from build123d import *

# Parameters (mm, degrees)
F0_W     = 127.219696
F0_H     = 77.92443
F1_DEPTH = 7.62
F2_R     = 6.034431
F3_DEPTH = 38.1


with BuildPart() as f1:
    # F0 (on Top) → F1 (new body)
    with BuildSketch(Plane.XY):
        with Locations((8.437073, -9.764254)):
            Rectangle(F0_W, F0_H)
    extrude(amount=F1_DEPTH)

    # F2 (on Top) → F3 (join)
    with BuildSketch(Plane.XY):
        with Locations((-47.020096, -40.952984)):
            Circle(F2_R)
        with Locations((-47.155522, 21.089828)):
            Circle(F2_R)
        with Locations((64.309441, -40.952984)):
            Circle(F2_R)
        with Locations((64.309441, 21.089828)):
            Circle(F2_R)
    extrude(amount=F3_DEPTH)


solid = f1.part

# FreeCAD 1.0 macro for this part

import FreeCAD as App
import Part
import Sketcher
from FreeCAD import Vector
Q = App.Units.Quantity


def add_polygon(sketch, points):
    """Adds a closed chain of lines whose ends are joined by coincident constraints."""
    first, n = sketch.GeometryCount, len(points)
    for a, b in zip(points, points[1:] + points[:1]):
        sketch.addGeometry(Part.LineSegment(App.Vector(*a, 0), App.Vector(*b, 0)), False)
    for i in range(n):
        sketch.addConstraint(Sketcher.Constraint("Coincident", first + i, 2, first + (i + 1) % n, 1))

doc = App.newDocument("Part")
body = doc.addObject("PartDesign::Body", "Body")

sketch1 = body.newObject("Sketcher::SketchObject", "Sketch")
sketch1.AttachmentSupport = (doc.getObject("XY_Plane"), [""])
sketch1.MapMode = "FlatFace"
add_polygon(sketch1, [(-55.172775, 29.197961), (-55.172775, -48.726469), (72.046921, -48.726469), (72.046921, 29.197961)])
sketch1.addConstraint(Sketcher.Constraint("Vertical", 0))
sketch1.addConstraint(Sketcher.Constraint("Horizontal", 1))
sketch1.addConstraint(Sketcher.Constraint("Vertical", 2))
sketch1.addConstraint(Sketcher.Constraint("Horizontal", 3))
sketch1.addConstraint(Sketcher.Constraint("DistanceY", 0, 2, 0, 1, 77.92443))
sketch1.addConstraint(Sketcher.Constraint("DistanceX", 1, 1, 1, 2, 127.219696))
sketch1.addConstraint(Sketcher.Constraint("DistanceY", 0, 2, -1, 1, 48.726469))
sketch1.addConstraint(Sketcher.Constraint("DistanceX", -1, 1, 1, 2, 72.046921))
pad1 = body.newObject("PartDesign::Pad", "Pad")
pad1.Profile = sketch1
pad1.Length = Q("0.3 in")

sketch2 = body.newObject("Sketcher::SketchObject", "Sketch001")
sketch2.AttachmentSupport = (doc.getObject("XY_Plane"), [""])
sketch2.MapMode = "FlatFace"
sketch2.addGeometry(Part.Circle(Vector(-47.020096, -40.952984, 0), Vector(0, 0, 1), 6.034431), False)
sketch2.addGeometry(Part.Circle(Vector(-47.155522, 21.089828, 0), Vector(0, 0, 1), 6.034431), False)
sketch2.addGeometry(Part.Circle(Vector(64.309441, -40.952984, 0), Vector(0, 0, 1), 6.034431), False)
sketch2.addGeometry(Part.Circle(Vector(64.309441, 21.089828, 0), Vector(0, 0, 1), 6.034431), False)
sketch2.addConstraint(Sketcher.Constraint("Equal", 0, 1))
sketch2.addConstraint(Sketcher.Constraint("Equal", 1, 2))
sketch2.addConstraint(Sketcher.Constraint("Equal", 2, 3))
sketch2.addConstraint(Sketcher.Constraint("Horizontal", 0, 3, 2, 3))
sketch2.addConstraint(Sketcher.Constraint("Horizontal", 1, 3, 3, 3))
sketch2.addConstraint(Sketcher.Constraint("Vertical", 2, 3, 3, 3))
sketch2.addConstraint(Sketcher.Constraint("Diameter", 0, 12.068862))
sketch2.addConstraint(Sketcher.Constraint("DistanceX", 1, 3, -1, 1, 47.155522))
sketch2.addConstraint(Sketcher.Constraint("DistanceY", -1, 1, 1, 3, 21.089828))
sketch2.addConstraint(Sketcher.Constraint("DistanceX", -1, 1, 2, 3, 64.309441))
sketch2.addConstraint(Sketcher.Constraint("DistanceY", 0, 3, 1, 3, 62.042812))
sketch2.addConstraint(Sketcher.Constraint("DistanceX", 0, 3, -1, 1, 47.020096))
pad2 = body.newObject("PartDesign::Pad", "Pad001")
pad2.Profile = sketch2
pad2.Length = Q("1.5 in")

doc.recompute()
